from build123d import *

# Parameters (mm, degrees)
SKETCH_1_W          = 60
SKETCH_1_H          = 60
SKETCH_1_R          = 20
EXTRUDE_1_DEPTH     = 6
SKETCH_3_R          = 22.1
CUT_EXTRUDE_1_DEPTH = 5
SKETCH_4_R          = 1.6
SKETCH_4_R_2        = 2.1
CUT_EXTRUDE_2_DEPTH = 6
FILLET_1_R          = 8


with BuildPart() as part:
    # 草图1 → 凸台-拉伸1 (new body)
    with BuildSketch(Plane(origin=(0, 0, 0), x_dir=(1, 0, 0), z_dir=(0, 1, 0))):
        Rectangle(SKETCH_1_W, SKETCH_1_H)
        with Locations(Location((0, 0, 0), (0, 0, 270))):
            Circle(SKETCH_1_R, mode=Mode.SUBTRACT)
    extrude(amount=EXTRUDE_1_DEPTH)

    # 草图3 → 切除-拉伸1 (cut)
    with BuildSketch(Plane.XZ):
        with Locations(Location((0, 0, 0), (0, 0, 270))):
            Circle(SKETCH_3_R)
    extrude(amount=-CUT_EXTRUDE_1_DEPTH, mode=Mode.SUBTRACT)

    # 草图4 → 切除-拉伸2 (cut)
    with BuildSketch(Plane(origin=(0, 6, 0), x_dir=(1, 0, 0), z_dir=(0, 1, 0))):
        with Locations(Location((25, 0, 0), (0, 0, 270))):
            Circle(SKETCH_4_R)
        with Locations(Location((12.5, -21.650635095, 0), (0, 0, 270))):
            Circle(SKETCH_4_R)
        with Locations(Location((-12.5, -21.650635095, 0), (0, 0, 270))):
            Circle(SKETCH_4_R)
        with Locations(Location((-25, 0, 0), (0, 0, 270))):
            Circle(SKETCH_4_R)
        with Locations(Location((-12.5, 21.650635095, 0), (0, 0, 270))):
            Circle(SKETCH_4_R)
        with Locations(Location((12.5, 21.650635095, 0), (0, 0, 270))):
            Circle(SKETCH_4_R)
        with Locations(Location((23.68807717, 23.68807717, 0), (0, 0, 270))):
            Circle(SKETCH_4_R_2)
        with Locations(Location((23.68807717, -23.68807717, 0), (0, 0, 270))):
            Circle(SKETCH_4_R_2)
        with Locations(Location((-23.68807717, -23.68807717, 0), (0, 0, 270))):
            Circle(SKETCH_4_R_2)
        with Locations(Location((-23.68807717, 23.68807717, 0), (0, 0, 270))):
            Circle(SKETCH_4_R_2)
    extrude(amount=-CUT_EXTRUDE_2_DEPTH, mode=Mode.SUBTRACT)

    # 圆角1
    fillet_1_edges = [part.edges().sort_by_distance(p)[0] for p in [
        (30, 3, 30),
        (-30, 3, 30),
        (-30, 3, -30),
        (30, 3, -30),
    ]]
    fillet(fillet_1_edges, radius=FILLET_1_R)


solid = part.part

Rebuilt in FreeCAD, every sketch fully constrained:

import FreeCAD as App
import Part
import Sketcher
from FreeCAD import Vector


def edges_at(feature, points):
    """Names of the edges that pass closest to the given points."""
    edges = feature.Shape.Edges
    near = lambda p: min(range(len(edges)), key=lambda i: edges[i].distToShape(Part.Vertex(*p))[0])
    return sorted({f"Edge{near(p) + 1}" for p in points})


def add_polygon(sketch, points):
    """Adds a closed chain of lines whose ends are joined by coincident constraints."""
    first, n = sketch.GeometryCount, len(points)
    for a, b in zip(points, points[1:] + points[:1]):
        sketch.addGeometry(Part.LineSegment(App.Vector(*a, 0), App.Vector(*b, 0)), False)
    for i in range(n):
        sketch.addConstraint(Sketcher.Constraint("Coincident", first + i, 2, first + (i + 1) % n, 1))

doc = App.newDocument("Part")
params = doc.addObject("Spreadsheet::Sheet", "Params")
for row, (alias, value) in enumerate([
    ("sketch1_diameter", "40 mm"),
    ("sketch1_width", "60 mm"),
    ("pad1_length", "6 mm"),
    ("sketch2_diameter", "44.2 mm"),
    ("pocket1_length", "5 mm"),
    ("sketch3_diameter", "3.2 mm"),
    ("sketch3_diameter2", "4.2 mm"),
    ("pocket2_length", "6 mm"),
    ("fillet_radius", "8 mm"),
], start=1):
    params.set(f"A{row}", alias)
    params.set(f"B{row}", "=" + value)
    params.setAlias(f"B{row}", alias)

body = doc.addObject("PartDesign::Body", "Body")

# Sketch on XZ plane
sketch1 = doc.addObject("Sketcher::SketchObject", "Sketch")
body.addObject(sketch1)
sketch1.AttachmentSupport = (doc.XZ_Plane, [""])
sketch1.MapMode = "FlatFace"
add_polygon(sketch1, [(-30, -30), (-30, 30), (30, 30), (30, -30)])  # lines 0-3
sketch1.addGeometry(Part.Circle(Vector(0, 0, 0), Vector(0, 0, 1), 20), False)  # 4
sketch1.addConstraint(Sketcher.Constraint("Vertical", 0))
sketch1.addConstraint(Sketcher.Constraint("Horizontal", 1))
sketch1.addConstraint(Sketcher.Constraint("Vertical", 2))
sketch1.addConstraint(Sketcher.Constraint("Horizontal", 3))
sketch1.addConstraint(Sketcher.Constraint("Coincident", 4, 3, -1, 1))
sketch1.addConstraint(Sketcher.Constraint("Symmetric", 0, 2, 2, 2, -1, 1))
sketch1.addConstraint(Sketcher.Constraint("Equal", 3, 0))
sketch1.addConstraint(Sketcher.Constraint("Diameter", 4, 40.0))
sketch1.addConstraint(Sketcher.Constraint("DistanceX", 1, 1, 1, 2, 60.0))
sketch1.setExpression("Constraints[11]", "Params.sketch1_diameter")
sketch1.setExpression("Constraints[12]", "Params.sketch1_width")
pad1 = doc.addObject("PartDesign::Pad", "Pad")
body.addObject(pad1)
pad1.Profile = sketch1
pad1.setExpression("Length", "Params.pad1_length")
pad1.Reversed = True

# Sketch on XZ plane
sketch2 = doc.addObject("Sketcher::SketchObject", "Sketch001")
body.addObject(sketch2)
sketch2.AttachmentSupport = (doc.XZ_Plane, [""])
sketch2.MapMode = "FlatFace"
sketch2.addGeometry(Part.Circle(Vector(0, 0, 0), Vector(0, 0, 1), 22.1), False)
sketch2.addConstraint(Sketcher.Constraint("Coincident", 0, 3, -1, 1))
sketch2.addConstraint(Sketcher.Constraint("Diameter", 0, 44.2))
sketch2.setExpression("Constraints[1]", "Params.sketch2_diameter")
pocket1 = doc.addObject("PartDesign::Pocket", "Pocket")
body.addObject(pocket1)
pocket1.Profile = sketch2
pocket1.setExpression("Length", "Params.pocket1_length")

# Sketch on XZ plane
sketch3 = doc.addObject("Sketcher::SketchObject", "Sketch002")
body.addObject(sketch3)
sketch3.AttachmentSupport = (doc.XZ_Plane, [""])
sketch3.MapMode = "FlatFace"
sketch3.AttachmentOffset = App.Placement(Vector(0, 0, -6), App.Rotation())
sketch3.addGeometry(Part.Circle(Vector(25, 0, 0), Vector(0, 0, 1), 1.6), False)
sketch3.addGeometry(Part.Circle(Vector(12.5, 21.650635, 0), Vector(0, 0, 1), 1.6), False)
sketch3.addGeometry(Part.Circle(Vector(-12.5, 21.650635, 0), Vector(0, 0, 1), 1.6), False)
sketch3.addGeometry(Part.Circle(Vector(-25, 0, 0), Vector(0, 0, 1), 1.6), False)
sketch3.addGeometry(Part.Circle(Vector(-12.5, -21.650635, 0), Vector(0, 0, 1), 1.6), False)
sketch3.addGeometry(Part.Circle(Vector(12.5, -21.650635, 0), Vector(0, 0, 1), 1.6), False)
sketch3.addGeometry(Part.Circle(Vector(23.688077, -23.688077, 0), Vector(0, 0, 1), 2.1), False)
sketch3.addGeometry(Part.Circle(Vector(23.688077, 23.688077, 0), Vector(0, 0, 1), 2.1), False)
sketch3.addGeometry(Part.Circle(Vector(-23.688077, 23.688077, 0), Vector(0, 0, 1), 2.1), False)
sketch3.addGeometry(Part.Circle(Vector(-23.688077, -23.688077, 0), Vector(0, 0, 1), 2.1), False)
sketch3.addConstraint(Sketcher.Constraint("Equal", 0, 1))
sketch3.addConstraint(Sketcher.Constraint("Equal", 1, 2))
sketch3.addConstraint(Sketcher.Constraint("Equal", 2, 3))
sketch3.addConstraint(Sketcher.Constraint("Equal", 3, 4))
sketch3.addConstraint(Sketcher.Constraint("Equal", 4, 5))
sketch3.addConstraint(Sketcher.Constraint("Equal", 6, 7))
sketch3.addConstraint(Sketcher.Constraint("Equal", 7, 8))
sketch3.addConstraint(Sketcher.Constraint("Equal", 8, 9))
sketch3.addConstraint(Sketcher.Constraint("Symmetric", 0, 3, 3, 3, -1, 1))
sketch3.addConstraint(Sketcher.Constraint("Symmetric", 1, 3, 4, 3, -1, 1))
sketch3.addConstraint(Sketcher.Constraint("Symmetric", 2, 3, 5, 3, -1, 1))
sketch3.addConstraint(Sketcher.Constraint("Symmetric", 6, 3, 8, 3, -1, 1))
sketch3.addConstraint(Sketcher.Constraint("Symmetric", 7, 3, 9, 3, -1, 1))
sketch3.addConstraint(Sketcher.Constraint("Symmetric", 1, 3, 2, 3, -2))
sketch3.addConstraint(Sketcher.Constraint("Symmetric", 7, 3, 8, 3, -2))
sketch3.addConstraint(Sketcher.Constraint("PointOnObject", 0, 3, -1))
sketch3.addConstraint(Sketcher.Constraint("Diameter", 0, 3.2))
sketch3.addConstraint(Sketcher.Constraint("Diameter", 6, 4.2))
sketch3.addConstraint(Sketcher.Constraint("DistanceX", -1, 1, 0, 3, 25.0))
sketch3.addConstraint(Sketcher.Constraint("DistanceX", 2, 3, 1, 3, 25.0))
sketch3.addConstraint(Sketcher.Constraint("DistanceY", 4, 3, 2, 3, 43.30127))
sketch3.addConstraint(Sketcher.Constraint("DistanceX", -1, 1, 6, 3, 23.688077))
sketch3.addConstraint(Sketcher.Constraint("DistanceY", 6, 3, -1, 1, 23.688077))
sketch3.setExpression("Constraints[16]", "Params.sketch3_diameter")
sketch3.setExpression("Constraints[17]", "Params.sketch3_diameter2")
pocket2 = doc.addObject("PartDesign::Pocket", "Pocket001")
body.addObject(pocket2)
pocket2.Profile = sketch3
pocket2.setExpression("Length", "Params.pocket2_length")
pocket2.Reversed = True
doc.recompute()

fillet = doc.addObject("PartDesign::Fillet", "Fillet")
body.addObject(fillet)
fillet.Base = (pocket2, edges_at(pocket2, [
    (30, 3, 30),
    (-30, 3, 30),
    (-30, 3, -30),
    (30, 3, -30),
]))
fillet.setExpression("Radius", "Params.fillet_radius")

doc.recompute()
